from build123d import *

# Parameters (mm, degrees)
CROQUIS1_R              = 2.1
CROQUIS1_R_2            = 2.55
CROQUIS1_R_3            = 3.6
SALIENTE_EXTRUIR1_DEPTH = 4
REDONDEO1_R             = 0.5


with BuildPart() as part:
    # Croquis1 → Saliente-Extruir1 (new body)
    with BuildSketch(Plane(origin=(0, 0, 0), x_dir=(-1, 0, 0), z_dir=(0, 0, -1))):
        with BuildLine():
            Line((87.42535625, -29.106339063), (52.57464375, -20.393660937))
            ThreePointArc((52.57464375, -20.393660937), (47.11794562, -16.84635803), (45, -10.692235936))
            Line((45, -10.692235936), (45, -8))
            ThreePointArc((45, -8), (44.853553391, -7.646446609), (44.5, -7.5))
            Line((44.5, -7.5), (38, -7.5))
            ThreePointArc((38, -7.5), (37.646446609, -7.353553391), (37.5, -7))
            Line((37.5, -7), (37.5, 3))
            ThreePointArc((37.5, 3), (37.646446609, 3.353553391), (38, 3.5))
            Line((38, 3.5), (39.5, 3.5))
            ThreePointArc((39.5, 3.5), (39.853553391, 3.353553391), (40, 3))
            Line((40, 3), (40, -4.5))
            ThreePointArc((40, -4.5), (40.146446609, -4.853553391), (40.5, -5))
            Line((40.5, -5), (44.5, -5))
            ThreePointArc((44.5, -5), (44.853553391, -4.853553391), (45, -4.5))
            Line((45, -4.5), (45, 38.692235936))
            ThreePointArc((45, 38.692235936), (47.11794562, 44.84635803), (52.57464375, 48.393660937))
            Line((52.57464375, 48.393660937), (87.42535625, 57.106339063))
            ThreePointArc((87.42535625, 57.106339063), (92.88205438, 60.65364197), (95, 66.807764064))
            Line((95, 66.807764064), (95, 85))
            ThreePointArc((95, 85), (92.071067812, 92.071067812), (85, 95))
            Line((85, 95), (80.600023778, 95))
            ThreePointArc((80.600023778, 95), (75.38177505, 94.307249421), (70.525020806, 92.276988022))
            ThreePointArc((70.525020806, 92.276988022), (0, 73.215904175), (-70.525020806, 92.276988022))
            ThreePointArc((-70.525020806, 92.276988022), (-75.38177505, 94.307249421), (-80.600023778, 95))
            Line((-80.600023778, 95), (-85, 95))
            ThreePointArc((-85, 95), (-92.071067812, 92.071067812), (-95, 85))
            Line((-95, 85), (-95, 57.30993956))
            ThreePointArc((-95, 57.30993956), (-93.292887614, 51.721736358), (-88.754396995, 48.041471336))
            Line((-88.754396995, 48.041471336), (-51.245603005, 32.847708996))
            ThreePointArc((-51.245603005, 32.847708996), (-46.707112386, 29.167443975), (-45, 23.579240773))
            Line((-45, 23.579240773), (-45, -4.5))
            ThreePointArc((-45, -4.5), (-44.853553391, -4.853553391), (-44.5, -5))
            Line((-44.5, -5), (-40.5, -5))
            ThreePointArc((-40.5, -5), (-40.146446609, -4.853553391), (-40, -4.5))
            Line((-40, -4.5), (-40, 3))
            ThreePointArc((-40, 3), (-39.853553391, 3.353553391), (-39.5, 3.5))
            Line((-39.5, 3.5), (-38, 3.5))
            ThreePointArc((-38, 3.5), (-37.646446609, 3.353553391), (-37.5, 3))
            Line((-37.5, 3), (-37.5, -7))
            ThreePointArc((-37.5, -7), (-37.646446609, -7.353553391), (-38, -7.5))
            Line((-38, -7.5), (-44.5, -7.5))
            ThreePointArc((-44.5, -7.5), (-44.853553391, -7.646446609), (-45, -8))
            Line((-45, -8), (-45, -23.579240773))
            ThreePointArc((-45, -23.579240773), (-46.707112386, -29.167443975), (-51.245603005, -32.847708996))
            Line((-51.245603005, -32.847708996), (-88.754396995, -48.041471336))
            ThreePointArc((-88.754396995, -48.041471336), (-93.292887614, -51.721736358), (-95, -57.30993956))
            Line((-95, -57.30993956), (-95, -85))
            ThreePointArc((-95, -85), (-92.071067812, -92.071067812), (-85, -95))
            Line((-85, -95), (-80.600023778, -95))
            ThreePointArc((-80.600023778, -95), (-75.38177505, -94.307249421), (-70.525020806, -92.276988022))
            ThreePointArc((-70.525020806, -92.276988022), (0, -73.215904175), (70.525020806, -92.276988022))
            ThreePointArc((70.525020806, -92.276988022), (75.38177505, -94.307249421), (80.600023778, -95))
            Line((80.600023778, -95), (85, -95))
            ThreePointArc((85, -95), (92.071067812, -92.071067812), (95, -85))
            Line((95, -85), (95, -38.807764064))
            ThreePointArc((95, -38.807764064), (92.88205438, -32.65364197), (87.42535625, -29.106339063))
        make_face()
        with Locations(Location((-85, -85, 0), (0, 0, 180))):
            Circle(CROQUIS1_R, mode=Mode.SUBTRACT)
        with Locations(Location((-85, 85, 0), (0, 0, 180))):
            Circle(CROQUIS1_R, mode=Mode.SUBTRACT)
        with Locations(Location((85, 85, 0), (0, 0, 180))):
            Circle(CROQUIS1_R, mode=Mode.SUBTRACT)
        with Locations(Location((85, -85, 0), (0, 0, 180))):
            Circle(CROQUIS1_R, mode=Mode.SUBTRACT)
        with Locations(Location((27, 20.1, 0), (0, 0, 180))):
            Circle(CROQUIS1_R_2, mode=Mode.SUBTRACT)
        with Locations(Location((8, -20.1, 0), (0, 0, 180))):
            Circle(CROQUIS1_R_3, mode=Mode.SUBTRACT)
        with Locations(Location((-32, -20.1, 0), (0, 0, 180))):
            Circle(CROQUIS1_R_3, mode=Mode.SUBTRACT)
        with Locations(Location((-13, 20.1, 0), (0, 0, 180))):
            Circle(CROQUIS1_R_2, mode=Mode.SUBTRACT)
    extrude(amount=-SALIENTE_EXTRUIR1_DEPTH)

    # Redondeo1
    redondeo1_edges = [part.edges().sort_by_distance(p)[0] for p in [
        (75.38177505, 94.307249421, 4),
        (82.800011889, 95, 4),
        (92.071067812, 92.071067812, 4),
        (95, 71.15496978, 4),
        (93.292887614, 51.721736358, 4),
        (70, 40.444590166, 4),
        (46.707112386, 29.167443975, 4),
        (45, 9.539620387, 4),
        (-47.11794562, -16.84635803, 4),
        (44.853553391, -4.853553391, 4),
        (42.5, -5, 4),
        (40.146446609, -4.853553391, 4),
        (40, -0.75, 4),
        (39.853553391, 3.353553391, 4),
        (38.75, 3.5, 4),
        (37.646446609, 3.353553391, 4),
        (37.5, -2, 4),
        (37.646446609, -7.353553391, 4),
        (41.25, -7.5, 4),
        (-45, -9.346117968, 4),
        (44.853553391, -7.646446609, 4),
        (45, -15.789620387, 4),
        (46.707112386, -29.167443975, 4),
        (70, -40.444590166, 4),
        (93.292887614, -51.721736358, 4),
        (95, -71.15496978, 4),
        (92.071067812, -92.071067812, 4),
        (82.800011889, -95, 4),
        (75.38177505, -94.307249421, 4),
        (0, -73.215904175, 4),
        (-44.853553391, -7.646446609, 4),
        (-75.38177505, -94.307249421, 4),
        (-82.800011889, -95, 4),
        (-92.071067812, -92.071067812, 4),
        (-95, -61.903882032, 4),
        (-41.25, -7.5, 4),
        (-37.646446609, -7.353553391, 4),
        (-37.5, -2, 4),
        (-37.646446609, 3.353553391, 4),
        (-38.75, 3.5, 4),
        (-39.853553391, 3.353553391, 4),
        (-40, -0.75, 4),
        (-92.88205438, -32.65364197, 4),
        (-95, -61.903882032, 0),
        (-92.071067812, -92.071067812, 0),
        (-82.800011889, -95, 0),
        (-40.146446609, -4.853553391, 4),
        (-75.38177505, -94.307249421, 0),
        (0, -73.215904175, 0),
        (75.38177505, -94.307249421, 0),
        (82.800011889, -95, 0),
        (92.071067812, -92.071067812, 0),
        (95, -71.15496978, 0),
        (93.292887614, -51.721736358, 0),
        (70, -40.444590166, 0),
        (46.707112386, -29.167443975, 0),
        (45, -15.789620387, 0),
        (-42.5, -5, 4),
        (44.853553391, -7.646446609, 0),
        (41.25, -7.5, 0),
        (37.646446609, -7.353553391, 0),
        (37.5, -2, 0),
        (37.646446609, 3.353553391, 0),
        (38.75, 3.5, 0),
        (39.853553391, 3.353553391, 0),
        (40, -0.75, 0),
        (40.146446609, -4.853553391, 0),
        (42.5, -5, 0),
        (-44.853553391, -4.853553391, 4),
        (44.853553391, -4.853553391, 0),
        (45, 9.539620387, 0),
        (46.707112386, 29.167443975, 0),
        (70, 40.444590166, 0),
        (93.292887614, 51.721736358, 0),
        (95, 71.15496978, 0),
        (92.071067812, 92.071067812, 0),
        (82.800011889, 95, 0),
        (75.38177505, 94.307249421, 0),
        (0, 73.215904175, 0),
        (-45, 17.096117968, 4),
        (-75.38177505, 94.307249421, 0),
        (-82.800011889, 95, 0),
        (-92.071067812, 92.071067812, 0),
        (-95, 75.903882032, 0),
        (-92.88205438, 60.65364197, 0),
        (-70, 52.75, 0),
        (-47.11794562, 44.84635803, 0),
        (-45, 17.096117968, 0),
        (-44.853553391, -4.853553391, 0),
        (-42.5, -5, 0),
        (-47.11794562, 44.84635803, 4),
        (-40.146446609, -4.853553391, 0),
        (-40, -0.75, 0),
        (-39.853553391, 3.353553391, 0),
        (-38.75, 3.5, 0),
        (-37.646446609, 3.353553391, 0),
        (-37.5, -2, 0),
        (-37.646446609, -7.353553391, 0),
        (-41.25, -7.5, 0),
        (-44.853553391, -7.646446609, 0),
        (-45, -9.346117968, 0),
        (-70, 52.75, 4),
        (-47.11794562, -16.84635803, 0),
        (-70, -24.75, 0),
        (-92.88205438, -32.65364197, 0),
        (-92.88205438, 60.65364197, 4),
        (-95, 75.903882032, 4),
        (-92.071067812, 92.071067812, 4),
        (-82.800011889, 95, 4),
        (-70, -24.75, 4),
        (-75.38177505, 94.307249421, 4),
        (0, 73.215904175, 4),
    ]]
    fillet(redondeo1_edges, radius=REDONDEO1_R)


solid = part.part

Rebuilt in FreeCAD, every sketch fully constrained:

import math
import FreeCAD as App
import Part
import Sketcher

V = App.Vector
Q = App.Units.Quantity


def edges_at(feature, points):
    """Names of the edges that pass closest to the given points."""
    edges = feature.Shape.Edges
    near = lambda p: min(range(len(edges)), key=lambda i: edges[i].distToShape(Part.Vertex(*p))[0])
    return sorted({f"Edge{near(p) + 1}" for p in points})

doc = App.newDocument("Part")
params = doc.addObject("Spreadsheet::Sheet", "Params")
for row, (alias, value) in enumerate([
    ("sketch1_radius", "10 mm"),
    ("sketch1_radius2", "20 mm"),
    ("sketch1_radius3", "140 mm"),
    ("sketch1_diameter", "4.2 mm"),
    ("sketch1_diameter2", "7.2 mm"),
    ("pad1_length", "4 mm"),
    ("fillet_radius", "0.5 mm"),
], start=1):
    params.set(f"A{row}", alias)
    params.set(f"B{row}", "=" + value)
    params.setAlias(f"B{row}", alias)

body = doc.addObject("PartDesign::Body", "Body")

# Sketch on XY plane
sketch1 = body.newObject("Sketcher::SketchObject", "Sketch")
sketch1.AttachmentSupport = (doc.getObject("XY_Plane"), [""])
sketch1.MapMode = "FlatFace"
sketch1.addGeometry([
    Part.LineSegment(V(-87.425356, -29.106339, 0), V(-52.574644, -20.393661, 0)),  # 0
    Part.ArcOfCircle(Part.Circle(V(-55, -10.692236, 0), V(0, 0, 1), 10), math.radians(-75.963757), math.radians(0)),  # 1
    Part.LineSegment(V(-45, -10.692236, 0), V(-45, -8, 0)),  # 2
    Part.ArcOfCircle(Part.Circle(V(-44.5, -8, 0), V(0, 0, 1), 0.5), math.radians(90), math.radians(180)),  # 3
    Part.LineSegment(V(-44.5, -7.5, 0), V(-38, -7.5, 0)),  # 4
    Part.ArcOfCircle(Part.Circle(V(-38, -7, 0), V(0, 0, 1), 0.5), math.radians(-90), math.radians(0)),  # 5
    Part.LineSegment(V(-37.5, -7, 0), V(-37.5, 3, 0)),  # 6
    Part.ArcOfCircle(Part.Circle(V(-38, 3, 0), V(0, 0, 1), 0.5), math.radians(0), math.radians(90)),  # 7
    Part.LineSegment(V(-38, 3.5, 0), V(-39.5, 3.5, 0)),  # 8
    Part.ArcOfCircle(Part.Circle(V(-39.5, 3, 0), V(0, 0, 1), 0.5), math.radians(90), math.radians(180)),  # 9
    Part.LineSegment(V(-40, 3, 0), V(-40, -4.5, 0)),  # 10
    Part.ArcOfCircle(Part.Circle(V(-40.5, -4.5, 0), V(0, 0, 1), 0.5), math.radians(-90), math.radians(0)),  # 11
    Part.LineSegment(V(-40.5, -5, 0), V(-44.5, -5, 0)),  # 12
    Part.ArcOfCircle(Part.Circle(V(-44.5, -4.5, 0), V(0, 0, 1), 0.5), math.radians(180), math.radians(270)),  # 13
    Part.LineSegment(V(-45, -4.5, 0), V(-45, 38.692236, 0)),  # 14
    Part.ArcOfCircle(Part.Circle(V(-55, 38.692236, 0), V(0, 0, 1), 10), math.radians(0), math.radians(75.963757)),  # 15
    Part.LineSegment(V(-52.574644, 48.393661, 0), V(-87.425356, 57.106339, 0)),  # 16
    Part.ArcOfCircle(Part.Circle(V(-85, 66.807764, 0), V(0, 0, 1), 10), math.radians(180), math.radians(255.963757)),  # 17
    Part.LineSegment(V(-95, 66.807764, 0), V(-95, 85, 0)),  # 18
    Part.ArcOfCircle(Part.Circle(V(-85, 85, 0), V(0, 0, 1), 10), math.radians(90), math.radians(180)),  # 19
    Part.LineSegment(V(-85, 95, 0), V(-80.600024, 95, 0)),  # 20
    Part.ArcOfCircle(Part.Circle(V(-80.600024, 75, 0), V(0, 0, 1), 20), math.radians(59.75158), math.radians(90)),  # 21
    Part.ArcOfCircle(Part.Circle(V(0, 213.215904, 0), V(0, 0, 1), 140), math.radians(-120.24842), math.radians(-59.75158)),  # 22
    Part.ArcOfCircle(Part.Circle(V(80.600024, 75, 0), V(0, 0, 1), 20), math.radians(90), math.radians(120.24842)),  # 23
    Part.LineSegment(V(80.600024, 95, 0), V(85, 95, 0)),  # 24
    Part.ArcOfCircle(Part.Circle(V(85, 85, 0), V(0, 0, 1), 10), math.radians(0), math.radians(90)),  # 25
    Part.LineSegment(V(95, 85, 0), V(95, 57.30994, 0)),  # 26
    Part.ArcOfCircle(Part.Circle(V(85, 57.30994, 0), V(0, 0, 1), 10), math.radians(-67.948508), math.radians(0)),  # 27
    Part.LineSegment(V(88.754397, 48.041471, 0), V(51.245603, 32.847709, 0)),  # 28
    Part.ArcOfCircle(Part.Circle(V(55, 23.579241, 0), V(0, 0, 1), 10), math.radians(112.051492), math.radians(180)),  # 29
    Part.LineSegment(V(45, 23.579241, 0), V(45, -4.5, 0)),  # 30
    Part.ArcOfCircle(Part.Circle(V(44.5, -4.5, 0), V(0, 0, 1), 0.5), math.radians(-90), math.radians(0)),  # 31
    Part.LineSegment(V(44.5, -5, 0), V(40.5, -5, 0)),  # 32
    Part.ArcOfCircle(Part.Circle(V(40.5, -4.5, 0), V(0, 0, 1), 0.5), math.radians(180), math.radians(270)),  # 33
    Part.LineSegment(V(40, -4.5, 0), V(40, 3, 0)),  # 34
    Part.ArcOfCircle(Part.Circle(V(39.5, 3, 0), V(0, 0, 1), 0.5), math.radians(0), math.radians(90)),  # 35
    Part.LineSegment(V(39.5, 3.5, 0), V(38, 3.5, 0)),  # 36
    Part.ArcOfCircle(Part.Circle(V(38, 3, 0), V(0, 0, 1), 0.5), math.radians(90), math.radians(180)),  # 37
    Part.LineSegment(V(37.5, 3, 0), V(37.5, -7, 0)),  # 38
    Part.ArcOfCircle(Part.Circle(V(38, -7, 0), V(0, 0, 1), 0.5), math.radians(180), math.radians(270)),  # 39
    Part.LineSegment(V(38, -7.5, 0), V(44.5, -7.5, 0)),  # 40
    Part.ArcOfCircle(Part.Circle(V(44.5, -8, 0), V(0, 0, 1), 0.5), math.radians(0), math.radians(90)),  # 41
    Part.LineSegment(V(45, -8, 0), V(45, -23.579241, 0)),  # 42
    Part.ArcOfCircle(Part.Circle(V(55, -23.579241, 0), V(0, 0, 1), 10), math.radians(180), math.radians(247.948508)),  # 43
    Part.LineSegment(V(51.245603, -32.847709, 0), V(88.754397, -48.041471, 0)),  # 44
    Part.ArcOfCircle(Part.Circle(V(85, -57.30994, 0), V(0, 0, 1), 10), math.radians(0), math.radians(67.948508)),  # 45
    Part.LineSegment(V(95, -57.30994, 0), V(95, -85, 0)),  # 46
    Part.ArcOfCircle(Part.Circle(V(85, -85, 0), V(0, 0, 1), 10), math.radians(-90), math.radians(0)),  # 47
    Part.LineSegment(V(85, -95, 0), V(80.600024, -95, 0)),  # 48
    Part.ArcOfCircle(Part.Circle(V(80.600024, -75, 0), V(0, 0, 1), 20), math.radians(-120.24842), math.radians(-90)),  # 49
    Part.ArcOfCircle(Part.Circle(V(0, -213.215904, 0), V(0, 0, 1), 140), math.radians(59.75158), math.radians(120.24842)),  # 50
    Part.ArcOfCircle(Part.Circle(V(-80.600024, -75, 0), V(0, 0, 1), 20), math.radians(-90), math.radians(-59.75158)),  # 51
    Part.LineSegment(V(-80.600024, -95, 0), V(-85, -95, 0)),  # 52
    Part.ArcOfCircle(Part.Circle(V(-85, -85, 0), V(0, 0, 1), 10), math.radians(180), math.radians(270)),  # 53
    Part.LineSegment(V(-95, -85, 0), V(-95, -38.807764, 0)),  # 54
    Part.ArcOfCircle(Part.Circle(V(-85, -38.807764, 0), V(0, 0, 1), 10), math.radians(104.036243), math.radians(180)),  # 55
    Part.Circle(V(85, -85, 0), V(0, 0, 1), 2.1),  # 56
    Part.Circle(V(32, -20.1, 0), V(0, 0, 1), 3.6),  # 57
    Part.Circle(V(-85, -85, 0), V(0, 0, 1), 2.1),  # 58
    Part.Circle(V(-8, -20.1, 0), V(0, 0, 1), 3.6),  # 59
    Part.Circle(V(13, 20.1, 0), V(0, 0, 1), 2.55),  # 60
    Part.Circle(V(85, 85, 0), V(0, 0, 1), 2.1),  # 61
    Part.Circle(V(-27, 20.1, 0), V(0, 0, 1), 2.55),  # 62
    Part.Circle(V(-85, 85, 0), V(0, 0, 1), 2.1),  # 63
], False)
sketch1.addConstraint([
    Sketcher.Constraint("Tangent", 0, 2, 1, 1),
    Sketcher.Constraint("Tangent", 1, 2, 2, 1),
    Sketcher.Constraint("Tangent", 2, 2, 3, 2),
    Sketcher.Constraint("Tangent", 3, 1, 4, 1),
    Sketcher.Constraint("Tangent", 4, 2, 5, 1),
    Sketcher.Constraint("Tangent", 5, 2, 6, 1),
    Sketcher.Constraint("Tangent", 6, 2, 7, 1),
    Sketcher.Constraint("Tangent", 7, 2, 8, 1),
    Sketcher.Constraint("Tangent", 8, 2, 9, 1),
    Sketcher.Constraint("Tangent", 9, 2, 10, 1),
    Sketcher.Constraint("Tangent", 10, 2, 11, 2),
    Sketcher.Constraint("Tangent", 11, 1, 12, 1),
    Sketcher.Constraint("Tangent", 12, 2, 13, 2),
    Sketcher.Constraint("Tangent", 13, 1, 14, 1),
    Sketcher.Constraint("Tangent", 14, 2, 15, 1),
    Sketcher.Constraint("Tangent", 15, 2, 16, 1),
    Sketcher.Constraint("Tangent", 16, 2, 17, 2),
    Sketcher.Constraint("Tangent", 17, 1, 18, 1),
    Sketcher.Constraint("Tangent", 18, 2, 19, 2),
    Sketcher.Constraint("Tangent", 19, 1, 20, 1),
    Sketcher.Constraint("Tangent", 20, 2, 21, 2),
    Sketcher.Constraint("Tangent", 21, 1, 22, 1),
    Sketcher.Constraint("Tangent", 22, 2, 23, 2),
    Sketcher.Constraint("Tangent", 23, 1, 24, 1),
    Sketcher.Constraint("Tangent", 24, 2, 25, 2),
    Sketcher.Constraint("Tangent", 25, 1, 26, 1),
    Sketcher.Constraint("Tangent", 26, 2, 27, 2),
    Sketcher.Constraint("Tangent", 27, 1, 28, 1),
    Sketcher.Constraint("Tangent", 28, 2, 29, 1),
    Sketcher.Constraint("Tangent", 29, 2, 30, 1),
    Sketcher.Constraint("Tangent", 30, 2, 31, 2),
    Sketcher.Constraint("Tangent", 31, 1, 32, 1),
    Sketcher.Constraint("Tangent", 32, 2, 33, 2),
    Sketcher.Constraint("Tangent", 33, 1, 34, 1),
    Sketcher.Constraint("Tangent", 34, 2, 35, 1),
    Sketcher.Constraint("Tangent", 35, 2, 36, 1),
    Sketcher.Constraint("Tangent", 36, 2, 37, 1),
    Sketcher.Constraint("Tangent", 37, 2, 38, 1),
    Sketcher.Constraint("Tangent", 38, 2, 39, 1),
    Sketcher.Constraint("Tangent", 39, 2, 40, 1),
    Sketcher.Constraint("Tangent", 40, 2, 41, 2),
    Sketcher.Constraint("Tangent", 41, 1, 42, 1),
    Sketcher.Constraint("Tangent", 42, 2, 43, 1),
    Sketcher.Constraint("Tangent", 43, 2, 44, 1),
    Sketcher.Constraint("Tangent", 44, 2, 45, 2),
    Sketcher.Constraint("Tangent", 45, 1, 46, 1),
    Sketcher.Constraint("Tangent", 46, 2, 47, 2),
    Sketcher.Constraint("Tangent", 47, 1, 48, 1),
    Sketcher.Constraint("Tangent", 48, 2, 49, 2),
    Sketcher.Constraint("Tangent", 49, 1, 50, 1),
    Sketcher.Constraint("Tangent", 50, 2, 51, 2),
    Sketcher.Constraint("Tangent", 51, 1, 52, 1),
    Sketcher.Constraint("Tangent", 52, 2, 53, 2),
    Sketcher.Constraint("Tangent", 53, 1, 54, 1),
    Sketcher.Constraint("Tangent", 54, 2, 55, 2),
    Sketcher.Constraint("Tangent", 55, 1, 0, 1),
    Sketcher.Constraint("Vertical", 2),
    Sketcher.Constraint("Horizontal", 4),
    Sketcher.Constraint("Vertical", 6),
    Sketcher.Constraint("Horizontal", 8),
    Sketcher.Constraint("Vertical", 10),
    Sketcher.Constraint("Horizontal", 12),
    Sketcher.Constraint("Vertical", 14),
    Sketcher.Constraint("Vertical", 18),
    Sketcher.Constraint("Horizontal", 20),
    Sketcher.Constraint("Horizontal", 24),
    Sketcher.Constraint("Vertical", 26),
    Sketcher.Constraint("Vertical", 30),
    Sketcher.Constraint("Horizontal", 32),
    Sketcher.Constraint("Vertical", 34),
    Sketcher.Constraint("Horizontal", 36),
    Sketcher.Constraint("Vertical", 38),
    Sketcher.Constraint("Horizontal", 40),
    Sketcher.Constraint("Vertical", 42),
    Sketcher.Constraint("Vertical", 46),
    Sketcher.Constraint("Horizontal", 48),
    Sketcher.Constraint("Horizontal", 52),
    Sketcher.Constraint("Vertical", 54),
    Sketcher.Constraint("Coincident", 56, 3, 47, 3),
    Sketcher.Constraint("Coincident", 58, 3, 53, 3),
    Sketcher.Constraint("Coincident", 61, 3, 25, 3),
    Sketcher.Constraint("Coincident", 63, 3, 19, 3),
    Sketcher.Constraint("Equal", 3, 5),
    Sketcher.Constraint("Equal", 5, 7),
    Sketcher.Constraint("Equal", 7, 9),
    Sketcher.Constraint("Equal", 9, 11),
    Sketcher.Constraint("Equal", 11, 13),
    Sketcher.Constraint("Equal", 1, 15),
    Sketcher.Constraint("Equal", 15, 17),
    Sketcher.Constraint("Equal", 17, 19),
    Sketcher.Constraint("Equal", 21, 23),
    Sketcher.Constraint("Equal", 19, 25),
    Sketcher.Constraint("Equal", 25, 27),
    Sketcher.Constraint("Equal", 27, 29),
    Sketcher.Constraint("Equal", 13, 31),
    Sketcher.Constraint("Equal", 31, 33),
    Sketcher.Constraint("Equal", 33, 35),
    Sketcher.Constraint("Equal", 35, 37),
    Sketcher.Constraint("Equal", 37, 39),
    Sketcher.Constraint("Equal", 39, 41),
    Sketcher.Constraint("Equal", 29, 43),
    Sketcher.Constraint("Equal", 43, 45),
    Sketcher.Constraint("Equal", 45, 47),
    Sketcher.Constraint("Equal", 23, 49),
    Sketcher.Constraint("Equal", 22, 50),
    Sketcher.Constraint("Equal", 49, 51),
    Sketcher.Constraint("Equal", 47, 53),
    Sketcher.Constraint("Equal", 53, 55),
    Sketcher.Constraint("Equal", 56, 58),
    Sketcher.Constraint("Equal", 57, 59),
    Sketcher.Constraint("Equal", 58, 61),
    Sketcher.Constraint("Equal", 60, 62),
    Sketcher.Constraint("Equal", 61, 63),
    Sketcher.Constraint("Symmetric", 19, 3, 47, 3, -1, 1),
    Sketcher.Constraint("Symmetric", 22, 3, 50, 3, -1, 1),
    Sketcher.Constraint("Symmetric", 25, 3, 53, 3, -1, 1),
    Sketcher.Constraint("Symmetric", 21, 3, 23, 3, -2),
    Sketcher.Constraint("Symmetric", 13, 3, 31, 3, -2),
    Sketcher.Constraint("Symmetric", 9, 3, 35, 3, -2),
    Sketcher.Constraint("Symmetric", 5, 3, 39, 3, -2),
    Sketcher.Constraint("Symmetric", 29, 3, 43, 3, -1),
    Sketcher.Constraint("Symmetric", 27, 3, 45, 3, -1),
    Sketcher.Constraint("Horizontal", 57, 3, 59, 3),
    Sketcher.Constraint("Horizontal", 60, 3, 62, 3),
    Sketcher.Constraint("Vertical", 3, 3, 13, 3),
    Sketcher.Constraint("Vertical", 0, 2, 15, 2),
    Sketcher.Constraint("Radius", 1, Q("10 mm")),
    Sketcher.Constraint("Radius", 21, Q("20 mm")),
    Sketcher.Constraint("Radius", 22, Q("140 mm")),
    Sketcher.Constraint("Diameter", 56, Q("4.2 mm")),
    Sketcher.Constraint("Diameter", 57, Q("7.2 mm")),
    Sketcher.Constraint("Diameter", 60, Q("5.1 mm")),
    Sketcher.Constraint("Radius", 3, Q("0.5 mm")),
    Sketcher.Constraint("DistanceX", 12, 2, 12, 1, Q("4 mm")),
    Sketcher.Constraint("DistanceY", 6, 1, 6, 2, Q("10 mm")),
    Sketcher.Constraint("DistanceX", 4, 1, 4, 2, Q("6.5 mm")),
    Sketcher.Constraint("DistanceY", 10, 2, 10, 1, Q("7.5 mm")),
    Sketcher.Constraint("DistanceX", 1, 3, -1, 1, Q("55 mm")),
    Sketcher.Constraint("DistanceY", 3, 3, -1, 1, Q("8 mm")),
    Sketcher.Constraint("DistanceX", 17, 3, -1, 1, Q("85 mm")),
    Sketcher.Constraint("DistanceY", -1, 1, 19, 3, Q("85 mm")),
    Sketcher.Constraint("DistanceX", -1, 1, 57, 3, Q("32 mm")),
    Sketcher.Constraint("DistanceX", 59, 3, -1, 1, Q("8 mm")),
    Sketcher.Constraint("DistanceX", -1, 1, 60, 3, Q("13 mm")),
    Sketcher.Constraint("DistanceX", 62, 3, -1, 1, Q("27 mm")),
    Sketcher.Constraint("DistanceY", 57, 3, -1, 1, Q("20.1 mm")),
    Sketcher.Constraint("DistanceY", -1, 1, 60, 3, Q("20.1 mm")),
    Sketcher.Constraint("DistanceY", 26, 2, 26, 1, Q("27.69006 mm")),
    Sketcher.Constraint("DistanceY", 30, 2, 30, 1, Q("28.079241 mm")),
    Sketcher.Constraint("DistanceX", 20, 1, 20, 2, Q("4.399976 mm")),
    Sketcher.Constraint("DistanceY", 2, 1, 2, 2, Q("2.692236 mm")),
    Sketcher.Constraint("DistanceY", 14, 1, 14, 2, Q("43.192236 mm")),
    Sketcher.Constraint("DistanceY", 18, 1, 18, 2, Q("18.192236 mm")),
])
sketch1.setExpression("Constraints[126]", "Params.sketch1_radius")
sketch1.setExpression("Constraints[127]", "Params.sketch1_radius2")
sketch1.setExpression("Constraints[128]", "Params.sketch1_radius3")
sketch1.setExpression("Constraints[129]", "Params.sketch1_diameter")
sketch1.setExpression("Constraints[130]", "Params.sketch1_diameter2")
pad1 = body.newObject("PartDesign::Pad", "Pad")
pad1.Profile = sketch1
pad1.setExpression("Length", "Params.pad1_length")
doc.recompute()

fillet = body.newObject("PartDesign::Fillet", "Fillet")
fillet.Base = (pad1, edges_at(pad1, [
    (75.382, 94.307, 4),
    (82.8, 95, 4),
    (92.071, 92.071, 4),
    (95, 71.155, 4),
    (93.293, 51.722, 4),
    (70, 40.445, 4),
    (46.707, 29.167, 4),
    (45, 9.54, 4),
    (-47.118, -16.846, 4),
    (44.854, -4.854, 4),
    (42.5, -5, 4),
    (40.146, -4.854, 4),
    (40, -0.75, 4),
    (39.854, 3.354, 4),
    (38.75, 3.5, 4),
    (37.646, 3.354, 4),
    (37.5, -2, 4),
    (37.646, -7.354, 4),
    (41.25, -7.5, 4),
    (-45, -9.346, 4),
    (44.854, -7.646, 4),
    (45, -15.79, 4),
    (46.707, -29.167, 4),
    (70, -40.445, 4),
    (93.293, -51.722, 4),
    (95, -71.155, 4),
    (92.071, -92.071, 4),
    (82.8, -95, 4),
    (75.382, -94.307, 4),
    (0, -73.216, 4),
    (-44.854, -7.646, 4),
    (-75.382, -94.307, 4),
    (-82.8, -95, 4),
    (-92.071, -92.071, 4),
    (-95, -61.904, 4),
    (-41.25, -7.5, 4),
    (-37.646, -7.354, 4),
    (-37.5, -2, 4),
    (-37.646, 3.354, 4),
    (-38.75, 3.5, 4),
    (-39.854, 3.354, 4),
    (-40, -0.75, 4),
    (-92.882, -32.654, 4),
    (-95, -61.904, 0),
    (-92.071, -92.071, 0),
    (-82.8, -95, 0),
    (-40.146, -4.854, 4),
    (-75.382, -94.307, 0),
    (0, -73.216, 0),
    (75.382, -94.307, 0),
    (82.8, -95, 0),
    (92.071, -92.071, 0),
    (95, -71.155, 0),
    (93.293, -51.722, 0),
    (70, -40.445, 0),
    (46.707, -29.167, 0),
    (45, -15.79, 0),
    (-42.5, -5, 4),
    (44.854, -7.646, 0),
    (41.25, -7.5, 0),
    (37.646, -7.354, 0),
    (37.5, -2, 0),
    (37.646, 3.354, 0),
    (38.75, 3.5, 0),
    (39.854, 3.354, 0),
    (40, -0.75, 0),
    (40.146, -4.854, 0),
    (42.5, -5, 0),
    (-44.854, -4.854, 4),
    (44.854, -4.854, 0),
    (45, 9.54, 0),
    (46.707, 29.167, 0),
    (70, 40.445, 0),
    (93.293, 51.722, 0),
    (95, 71.155, 0),
    (92.071, 92.071, 0),
    (82.8, 95, 0),
    (75.382, 94.307, 0),
    (0, 73.216, 0),
    (-45, 17.096, 4),
    (-75.382, 94.307, 0),
    (-82.8, 95, 0),
    (-92.071, 92.071, 0),
    (-95, 75.904, 0),
    (-92.882, 60.654, 0),
    (-70, 52.75, 0),
    (-47.118, 44.846, 0),
    (-45, 17.096, 0),
    (-44.854, -4.854, 0),
    (-42.5, -5, 0),
    (-47.118, 44.846, 4),
    (-40.146, -4.854, 0),
    (-40, -0.75, 0),
    (-39.854, 3.354, 0),
    (-38.75, 3.5, 0),
    (-37.646, 3.354, 0),
    (-37.5, -2, 0),
    (-37.646, -7.354, 0),
    (-41.25, -7.5, 0),
    (-44.854, -7.646, 0),
    (-45, -9.346, 0),
    (-70, 52.75, 4),
    (-47.118, -16.846, 0),
    (-70, -24.75, 0),
    (-92.882, -32.654, 0),
    (-92.882, 60.654, 4),
    (-95, 75.904, 4),
    (-92.071, 92.071, 4),
    (-82.8, 95, 4),
    (-70, -24.75, 4),
    (-75.382, 94.307, 4),
    (0, 73.216, 4),
]))
fillet.setExpression("Radius", "Params.fillet_radius")

doc.recompute()
